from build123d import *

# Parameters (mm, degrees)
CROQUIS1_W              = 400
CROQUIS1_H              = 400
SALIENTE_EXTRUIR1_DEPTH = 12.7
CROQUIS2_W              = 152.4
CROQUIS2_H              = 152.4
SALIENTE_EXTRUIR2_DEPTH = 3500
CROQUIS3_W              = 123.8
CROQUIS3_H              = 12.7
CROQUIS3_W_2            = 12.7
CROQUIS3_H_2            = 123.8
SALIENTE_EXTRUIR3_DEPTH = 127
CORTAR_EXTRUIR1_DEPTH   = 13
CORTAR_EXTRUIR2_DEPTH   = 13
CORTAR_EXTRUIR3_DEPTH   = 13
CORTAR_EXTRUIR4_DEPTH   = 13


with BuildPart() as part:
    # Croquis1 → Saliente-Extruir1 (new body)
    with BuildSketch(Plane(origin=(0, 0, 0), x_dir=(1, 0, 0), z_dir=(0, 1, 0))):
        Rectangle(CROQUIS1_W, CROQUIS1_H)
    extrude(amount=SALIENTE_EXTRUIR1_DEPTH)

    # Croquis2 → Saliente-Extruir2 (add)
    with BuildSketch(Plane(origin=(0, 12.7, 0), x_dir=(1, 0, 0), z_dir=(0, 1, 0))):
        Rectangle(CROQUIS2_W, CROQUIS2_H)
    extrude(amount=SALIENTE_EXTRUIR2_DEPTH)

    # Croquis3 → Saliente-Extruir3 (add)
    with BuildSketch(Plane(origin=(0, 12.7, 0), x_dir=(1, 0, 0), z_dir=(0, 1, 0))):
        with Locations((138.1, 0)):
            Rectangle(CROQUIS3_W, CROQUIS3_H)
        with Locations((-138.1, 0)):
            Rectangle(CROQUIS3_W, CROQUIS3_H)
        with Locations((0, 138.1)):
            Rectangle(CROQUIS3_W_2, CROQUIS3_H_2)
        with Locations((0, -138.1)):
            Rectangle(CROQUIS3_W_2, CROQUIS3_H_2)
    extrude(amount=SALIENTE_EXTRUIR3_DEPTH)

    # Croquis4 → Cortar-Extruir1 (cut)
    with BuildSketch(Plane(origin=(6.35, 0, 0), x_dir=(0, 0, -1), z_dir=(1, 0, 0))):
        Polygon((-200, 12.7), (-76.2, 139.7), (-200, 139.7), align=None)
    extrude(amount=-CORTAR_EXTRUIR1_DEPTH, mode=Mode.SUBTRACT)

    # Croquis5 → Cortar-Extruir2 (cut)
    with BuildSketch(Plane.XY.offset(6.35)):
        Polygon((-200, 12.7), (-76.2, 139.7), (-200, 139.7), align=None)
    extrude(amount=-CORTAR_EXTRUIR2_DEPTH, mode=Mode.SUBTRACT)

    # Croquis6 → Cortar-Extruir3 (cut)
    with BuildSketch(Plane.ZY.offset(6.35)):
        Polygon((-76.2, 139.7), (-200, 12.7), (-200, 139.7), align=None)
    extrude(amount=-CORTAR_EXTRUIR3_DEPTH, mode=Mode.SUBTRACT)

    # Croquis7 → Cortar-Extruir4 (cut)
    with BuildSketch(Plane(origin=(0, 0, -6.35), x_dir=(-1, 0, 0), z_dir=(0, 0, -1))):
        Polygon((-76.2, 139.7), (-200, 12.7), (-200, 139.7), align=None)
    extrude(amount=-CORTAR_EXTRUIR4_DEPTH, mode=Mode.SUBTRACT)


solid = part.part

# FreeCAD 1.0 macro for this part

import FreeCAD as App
import Part
import Sketcher
from FreeCAD import Vector
Q = App.Units.Quantity

doc = App.newDocument("Part")
body = doc.addObject("PartDesign::Body", "Body")

# Sketch on XZ plane
sketch1 = body.newObject("Sketcher::SketchObject", "Sketch")
sketch1.AttachmentSupport = (doc.getObject("XZ_Plane"), [""])
sketch1.MapMode = "FlatFace"
sketch1.addGeometry(Part.LineSegment(Vector(-200, -200, 0), Vector(-200, 200, 0)), False)
sketch1.addGeometry(Part.LineSegment(Vector(-200, 200, 0), Vector(200, 200, 0)), False)
sketch1.addGeometry(Part.LineSegment(Vector(200, 200, 0), Vector(200, -200, 0)), False)
sketch1.addGeometry(Part.LineSegment(Vector(200, -200, 0), Vector(-200, -200, 0)), False)
sketch1.addConstraint(Sketcher.Constraint("Coincident", 0, 2, 1, 1))
sketch1.addConstraint(Sketcher.Constraint("Coincident", 1, 2, 2, 1))
sketch1.addConstraint(Sketcher.Constraint("Coincident", 2, 2, 3, 1))
sketch1.addConstraint(Sketcher.Constraint("Coincident", 3, 2, 0, 1))
sketch1.addConstraint(Sketcher.Constraint("Vertical", 0))
sketch1.addConstraint(Sketcher.Constraint("Horizontal", 1))
sketch1.addConstraint(Sketcher.Constraint("Vertical", 2))
sketch1.addConstraint(Sketcher.Constraint("Horizontal", 3))
sketch1.addConstraint(Sketcher.Constraint("Symmetric", 0, 2, 2, 2, -1, 1))
sketch1.addConstraint(Sketcher.Constraint("Equal", 3, 0))
sketch1.addConstraint(Sketcher.Constraint("DistanceX", 1, 1, 1, 2, Q("400 mm")))
pad1 = body.newObject("PartDesign::Pad", "Pad")
pad1.Profile = sketch1
pad1.Length = 12.7
pad1.Reversed = True

# Sketch on XZ plane
sketch2 = body.newObject("Sketcher::SketchObject", "Sketch001")
sketch2.AttachmentSupport = (doc.getObject("XZ_Plane"), [""])
sketch2.MapMode = "FlatFace"
sketch2.AttachmentOffset = App.Placement(Vector(0, 0, -12.7), App.Rotation())
sketch2.addGeometry(Part.LineSegment(Vector(-76.2, -76.2, 0), Vector(-76.2, 76.2, 0)), False)
sketch2.addGeometry(Part.LineSegment(Vector(-76.2, 76.2, 0), Vector(76.2, 76.2, 0)), False)
sketch2.addGeometry(Part.LineSegment(Vector(76.2, 76.2, 0), Vector(76.2, -76.2, 0)), False)
sketch2.addGeometry(Part.LineSegment(Vector(76.2, -76.2, 0), Vector(-76.2, -76.2, 0)), False)
sketch2.addConstraint(Sketcher.Constraint("Coincident", 0, 2, 1, 1))
sketch2.addConstraint(Sketcher.Constraint("Coincident", 1, 2, 2, 1))
sketch2.addConstraint(Sketcher.Constraint("Coincident", 2, 2, 3, 1))
sketch2.addConstraint(Sketcher.Constraint("Coincident", 3, 2, 0, 1))
sketch2.addConstraint(Sketcher.Constraint("Vertical", 0))
sketch2.addConstraint(Sketcher.Constraint("Horizontal", 1))
sketch2.addConstraint(Sketcher.Constraint("Vertical", 2))
sketch2.addConstraint(Sketcher.Constraint("Horizontal", 3))
sketch2.addConstraint(Sketcher.Constraint("Symmetric", 0, 2, 2, 2, -1, 1))
sketch2.addConstraint(Sketcher.Constraint("Equal", 3, 0))
sketch2.addConstraint(Sketcher.Constraint("DistanceX", 1, 1, 1, 2, Q("152.4 mm")))
pad2 = body.newObject("PartDesign::Pad", "Pad001")
pad2.Profile = sketch2
pad2.Length = 3500
pad2.Reversed = True

# Sketch on XZ plane
sketch3 = body.newObject("Sketcher::SketchObject", "Sketch002")
sketch3.AttachmentSupport = (doc.getObject("XZ_Plane"), [""])
sketch3.MapMode = "FlatFace"
sketch3.AttachmentOffset = App.Placement(Vector(0, 0, -12.7), App.Rotation())
sketch3.addGeometry(Part.LineSegment(Vector(76.2, -6.35, 0), Vector(76.2, 6.35, 0)), False)
sketch3.addGeometry(Part.LineSegment(Vector(76.2, 6.35, 0), Vector(200, 6.35, 0)), False)
sketch3.addGeometry(Part.LineSegment(Vector(200, 6.35, 0), Vector(200, -6.35, 0)), False)
sketch3.addGeometry(Part.LineSegment(Vector(200, -6.35, 0), Vector(76.2, -6.35, 0)), False)
sketch3.addGeometry(Part.LineSegment(Vector(-200, -6.35, 0), Vector(-200, 6.35, 0)), False)
sketch3.addGeometry(Part.LineSegment(Vector(-200, 6.35, 0), Vector(-76.2, 6.35, 0)), False)
sketch3.addGeometry(Part.LineSegment(Vector(-76.2, 6.35, 0), Vector(-76.2, -6.35, 0)), False)
sketch3.addGeometry(Part.LineSegment(Vector(-76.2, -6.35, 0), Vector(-200, -6.35, 0)), False)
sketch3.addGeometry(Part.LineSegment(Vector(-6.35, -200, 0), Vector(-6.35, -76.2, 0)), False)
sketch3.addGeometry(Part.LineSegment(Vector(-6.35, -76.2, 0), Vector(6.35, -76.2, 0)), False)
sketch3.addGeometry(Part.LineSegment(Vector(6.35, -76.2, 0), Vector(6.35, -200, 0)), False)
sketch3.addGeometry(Part.LineSegment(Vector(6.35, -200, 0), Vector(-6.35, -200, 0)), False)
sketch3.addGeometry(Part.LineSegment(Vector(-6.35, 76.2, 0), Vector(-6.35, 200, 0)), False)
sketch3.addGeometry(Part.LineSegment(Vector(-6.35, 200, 0), Vector(6.35, 200, 0)), False)
sketch3.addGeometry(Part.LineSegment(Vector(6.35, 200, 0), Vector(6.35, 76.2, 0)), False)
sketch3.addGeometry(Part.LineSegment(Vector(6.35, 76.2, 0), Vector(-6.35, 76.2, 0)), False)
sketch3.addConstraint(Sketcher.Constraint("Coincident", 0, 2, 1, 1))
sketch3.addConstraint(Sketcher.Constraint("Coincident", 1, 2, 2, 1))
sketch3.addConstraint(Sketcher.Constraint("Coincident", 2, 2, 3, 1))
sketch3.addConstraint(Sketcher.Constraint("Coincident", 3, 2, 0, 1))
sketch3.addConstraint(Sketcher.Constraint("Coincident", 4, 2, 5, 1))
sketch3.addConstraint(Sketcher.Constraint("Coincident", 5, 2, 6, 1))
sketch3.addConstraint(Sketcher.Constraint("Coincident", 6, 2, 7, 1))
sketch3.addConstraint(Sketcher.Constraint("Coincident", 7, 2, 4, 1))
sketch3.addConstraint(Sketcher.Constraint("Coincident", 8, 2, 9, 1))
sketch3.addConstraint(Sketcher.Constraint("Coincident", 9, 2, 10, 1))
sketch3.addConstraint(Sketcher.Constraint("Coincident", 10, 2, 11, 1))
sketch3.addConstraint(Sketcher.Constraint("Coincident", 11, 2, 8, 1))
sketch3.addConstraint(Sketcher.Constraint("Coincident", 12, 2, 13, 1))
sketch3.addConstraint(Sketcher.Constraint("Coincident", 13, 2, 14, 1))
sketch3.addConstraint(Sketcher.Constraint("Coincident", 14, 2, 15, 1))
sketch3.addConstraint(Sketcher.Constraint("Coincident", 15, 2, 12, 1))
sketch3.addConstraint(Sketcher.Constraint("Vertical", 0))
sketch3.addConstraint(Sketcher.Constraint("Horizontal", 1))
sketch3.addConstraint(Sketcher.Constraint("Vertical", 2))
sketch3.addConstraint(Sketcher.Constraint("Horizontal", 3))
sketch3.addConstraint(Sketcher.Constraint("Vertical", 4))
sketch3.addConstraint(Sketcher.Constraint("Horizontal", 5))
sketch3.addConstraint(Sketcher.Constraint("Vertical", 6))
sketch3.addConstraint(Sketcher.Constraint("Horizontal", 7))
sketch3.addConstraint(Sketcher.Constraint("Vertical", 8))
sketch3.addConstraint(Sketcher.Constraint("Horizontal", 9))
sketch3.addConstraint(Sketcher.Constraint("Vertical", 10))
sketch3.addConstraint(Sketcher.Constraint("Horizontal", 11))
sketch3.addConstraint(Sketcher.Constraint("Vertical", 12))
sketch3.addConstraint(Sketcher.Constraint("Horizontal", 13))
sketch3.addConstraint(Sketcher.Constraint("Vertical", 14))
sketch3.addConstraint(Sketcher.Constraint("Horizontal", 15))
sketch3.addConstraint(Sketcher.Constraint("Symmetric", 2, 2, 4, 2, -1, 1))
sketch3.addConstraint(Sketcher.Constraint("Symmetric", 0, 2, 6, 2, -1, 1))
sketch3.addConstraint(Sketcher.Constraint("Symmetric", 10, 2, 12, 2, -1, 1))
sketch3.addConstraint(Sketcher.Constraint("Symmetric", 8, 2, 14, 2, -1, 1))
sketch3.addConstraint(Sketcher.Constraint("Horizontal", 1, 2, 4, 2))
sketch3.addConstraint(Sketcher.Constraint("Vertical", 11, 2, 12, 2))
sketch3.addConstraint(Sketcher.Constraint("Equal", 15, 0))
sketch3.addConstraint(Sketcher.Constraint("Equal", 7, 8))
sketch3.addConstraint(Sketcher.Constraint("DistanceX", 1, 1, 1, 2, Q("123.8 mm")))
sketch3.addConstraint(Sketcher.Constraint("DistanceX", 9, 1, 9, 2, Q("12.7 mm")))
sketch3.addConstraint(Sketcher.Constraint("DistanceX", -1, 1, 1, 2, Q("200 mm")))
sketch3.addConstraint(Sketcher.Constraint("DistanceY", 10, 2, -1, 1, Q("200 mm")))
pad3 = body.newObject("PartDesign::Pad", "Pad002")
pad3.Profile = sketch3
pad3.Length = 127
pad3.Reversed = True

# Sketch on YZ plane
sketch4 = body.newObject("Sketcher::SketchObject", "Sketch003")
sketch4.AttachmentSupport = (doc.getObject("YZ_Plane"), [""])
sketch4.MapMode = "FlatFace"
sketch4.AttachmentOffset = App.Placement(Vector(0, 0, 6.35), App.Rotation())
sketch4.addGeometry(Part.LineSegment(Vector(12.7, 200, 0), Vector(139.7, 76.2, 0)), False)
sketch4.addGeometry(Part.LineSegment(Vector(139.7, 76.2, 0), Vector(139.7, 200, 0)), False)
sketch4.addGeometry(Part.LineSegment(Vector(139.7, 200, 0), Vector(12.7, 200, 0)), False)
sketch4.addConstraint(Sketcher.Constraint("Coincident", 0, 2, 1, 1))
sketch4.addConstraint(Sketcher.Constraint("Coincident", 1, 2, 2, 1))
sketch4.addConstraint(Sketcher.Constraint("Coincident", 2, 2, 0, 1))
sketch4.addConstraint(Sketcher.Constraint("Vertical", 1))
sketch4.addConstraint(Sketcher.Constraint("Horizontal", 2))
sketch4.addConstraint(Sketcher.Constraint("DistanceX", 2, 2, 2, 1, Q("127 mm")))
sketch4.addConstraint(Sketcher.Constraint("DistanceY", 1, 1, 1, 2, Q("123.8 mm")))
sketch4.addConstraint(Sketcher.Constraint("DistanceY", -1, 1, 1, 2, Q("200 mm")))
sketch4.addConstraint(Sketcher.Constraint("DistanceX", -1, 1, 0, 2, Q("139.7 mm")))
pocket1 = body.newObject("PartDesign::Pocket", "Pocket")
pocket1.Profile = sketch4
pocket1.Length = 13

# Sketch on XY plane
sketch5 = body.newObject("Sketcher::SketchObject", "Sketch004")
sketch5.AttachmentSupport = (doc.getObject("XY_Plane"), [""])
sketch5.MapMode = "FlatFace"
sketch5.AttachmentOffset = App.Placement(Vector(0, 0, 6.35), App.Rotation())
sketch5.addGeometry(Part.LineSegment(Vector(-200, 12.7, 0), Vector(-76.2, 139.7, 0)), False)
sketch5.addGeometry(Part.LineSegment(Vector(-76.2, 139.7, 0), Vector(-200, 139.7, 0)), False)
sketch5.addGeometry(Part.LineSegment(Vector(-200, 139.7, 0), Vector(-200, 12.7, 0)), False)
sketch5.addConstraint(Sketcher.Constraint("Coincident", 0, 2, 1, 1))
sketch5.addConstraint(Sketcher.Constraint("Coincident", 1, 2, 2, 1))
sketch5.addConstraint(Sketcher.Constraint("Coincident", 2, 2, 0, 1))
sketch5.addConstraint(Sketcher.Constraint("Horizontal", 1))
sketch5.addConstraint(Sketcher.Constraint("Vertical", 2))
sketch5.addConstraint(Sketcher.Constraint("DistanceY", 2, 2, 2, 1, Q("127 mm")))
sketch5.addConstraint(Sketcher.Constraint("DistanceX", 1, 2, 1, 1, Q("123.8 mm")))
sketch5.addConstraint(Sketcher.Constraint("DistanceX", 1, 2, -1, 1, Q("200 mm")))
sketch5.addConstraint(Sketcher.Constraint("DistanceY", -1, 1, 0, 2, Q("139.7 mm")))
pocket2 = body.newObject("PartDesign::Pocket", "Pocket001")
pocket2.Profile = sketch5
pocket2.Length = 13

# Sketch on YZ plane
sketch6 = body.newObject("Sketcher::SketchObject", "Sketch005")
sketch6.AttachmentSupport = (doc.getObject("YZ_Plane"), [""])
sketch6.MapMode = "FlatFace"
sketch6.AttachmentOffset = App.Placement(Vector(0, 0, -6.35), App.Rotation())
sketch6.addGeometry(Part.LineSegment(Vector(12.7, -200, 0), Vector(139.7, -76.2, 0)), False)
sketch6.addGeometry(Part.LineSegment(Vector(139.7, -76.2, 0), Vector(139.7, -200, 0)), False)
sketch6.addGeometry(Part.LineSegment(Vector(139.7, -200, 0), Vector(12.7, -200, 0)), False)
sketch6.addConstraint(Sketcher.Constraint("Coincident", 0, 2, 1, 1))
sketch6.addConstraint(Sketcher.Constraint("Coincident", 1, 2, 2, 1))
sketch6.addConstraint(Sketcher.Constraint("Coincident", 2, 2, 0, 1))
sketch6.addConstraint(Sketcher.Constraint("Vertical", 1))
sketch6.addConstraint(Sketcher.Constraint("Horizontal", 2))
sketch6.addConstraint(Sketcher.Constraint("DistanceX", 2, 2, 2, 1, Q("127 mm")))
sketch6.addConstraint(Sketcher.Constraint("DistanceY", 1, 2, 1, 1, Q("123.8 mm")))
sketch6.addConstraint(Sketcher.Constraint("DistanceY", 1, 2, -1, 1, Q("200 mm")))
sketch6.addConstraint(Sketcher.Constraint("DistanceX", -1, 1, 0, 2, Q("139.7 mm")))
pocket3 = body.newObject("PartDesign::Pocket", "Pocket002")
pocket3.Profile = sketch6
pocket3.Length = 13
pocket3.Reversed = True

# Sketch on XY plane
sketch7 = body.newObject("Sketcher::SketchObject", "Sketch006")
sketch7.AttachmentSupport = (doc.getObject("XY_Plane"), [""])
sketch7.MapMode = "FlatFace"
sketch7.AttachmentOffset = App.Placement(Vector(0, 0, -6.35), App.Rotation())
sketch7.addGeometry(Part.LineSegment(Vector(200, 12.7, 0), Vector(76.2, 139.7, 0)), False)
sketch7.addGeometry(Part.LineSegment(Vector(76.2, 139.7, 0), Vector(200, 139.7, 0)), False)
sketch7.addGeometry(Part.LineSegment(Vector(200, 139.7, 0), Vector(200, 12.7, 0)), False)
sketch7.addConstraint(Sketcher.Constraint("Coincident", 0, 2, 1, 1))
sketch7.addConstraint(Sketcher.Constraint("Coincident", 1, 2, 2, 1))
sketch7.addConstraint(Sketcher.Constraint("Coincident", 2, 2, 0, 1))
sketch7.addConstraint(Sketcher.Constraint("Horizontal", 1))
sketch7.addConstraint(Sketcher.Constraint("Vertical", 2))
sketch7.addConstraint(Sketcher.Constraint("DistanceY", 2, 2, 2, 1, Q("127 mm")))
sketch7.addConstraint(Sketcher.Constraint("DistanceX", 1, 1, 1, 2, Q("123.8 mm")))
sketch7.addConstraint(Sketcher.Constraint("DistanceX", -1, 1, 1, 2, Q("200 mm")))
sketch7.addConstraint(Sketcher.Constraint("DistanceY", -1, 1, 0, 2, Q("139.7 mm")))
pocket4 = body.newObject("PartDesign::Pocket", "Pocket003")
pocket4.Profile = sketch7
pocket4.Length = 13
pocket4.Reversed = True

doc.recompute()
